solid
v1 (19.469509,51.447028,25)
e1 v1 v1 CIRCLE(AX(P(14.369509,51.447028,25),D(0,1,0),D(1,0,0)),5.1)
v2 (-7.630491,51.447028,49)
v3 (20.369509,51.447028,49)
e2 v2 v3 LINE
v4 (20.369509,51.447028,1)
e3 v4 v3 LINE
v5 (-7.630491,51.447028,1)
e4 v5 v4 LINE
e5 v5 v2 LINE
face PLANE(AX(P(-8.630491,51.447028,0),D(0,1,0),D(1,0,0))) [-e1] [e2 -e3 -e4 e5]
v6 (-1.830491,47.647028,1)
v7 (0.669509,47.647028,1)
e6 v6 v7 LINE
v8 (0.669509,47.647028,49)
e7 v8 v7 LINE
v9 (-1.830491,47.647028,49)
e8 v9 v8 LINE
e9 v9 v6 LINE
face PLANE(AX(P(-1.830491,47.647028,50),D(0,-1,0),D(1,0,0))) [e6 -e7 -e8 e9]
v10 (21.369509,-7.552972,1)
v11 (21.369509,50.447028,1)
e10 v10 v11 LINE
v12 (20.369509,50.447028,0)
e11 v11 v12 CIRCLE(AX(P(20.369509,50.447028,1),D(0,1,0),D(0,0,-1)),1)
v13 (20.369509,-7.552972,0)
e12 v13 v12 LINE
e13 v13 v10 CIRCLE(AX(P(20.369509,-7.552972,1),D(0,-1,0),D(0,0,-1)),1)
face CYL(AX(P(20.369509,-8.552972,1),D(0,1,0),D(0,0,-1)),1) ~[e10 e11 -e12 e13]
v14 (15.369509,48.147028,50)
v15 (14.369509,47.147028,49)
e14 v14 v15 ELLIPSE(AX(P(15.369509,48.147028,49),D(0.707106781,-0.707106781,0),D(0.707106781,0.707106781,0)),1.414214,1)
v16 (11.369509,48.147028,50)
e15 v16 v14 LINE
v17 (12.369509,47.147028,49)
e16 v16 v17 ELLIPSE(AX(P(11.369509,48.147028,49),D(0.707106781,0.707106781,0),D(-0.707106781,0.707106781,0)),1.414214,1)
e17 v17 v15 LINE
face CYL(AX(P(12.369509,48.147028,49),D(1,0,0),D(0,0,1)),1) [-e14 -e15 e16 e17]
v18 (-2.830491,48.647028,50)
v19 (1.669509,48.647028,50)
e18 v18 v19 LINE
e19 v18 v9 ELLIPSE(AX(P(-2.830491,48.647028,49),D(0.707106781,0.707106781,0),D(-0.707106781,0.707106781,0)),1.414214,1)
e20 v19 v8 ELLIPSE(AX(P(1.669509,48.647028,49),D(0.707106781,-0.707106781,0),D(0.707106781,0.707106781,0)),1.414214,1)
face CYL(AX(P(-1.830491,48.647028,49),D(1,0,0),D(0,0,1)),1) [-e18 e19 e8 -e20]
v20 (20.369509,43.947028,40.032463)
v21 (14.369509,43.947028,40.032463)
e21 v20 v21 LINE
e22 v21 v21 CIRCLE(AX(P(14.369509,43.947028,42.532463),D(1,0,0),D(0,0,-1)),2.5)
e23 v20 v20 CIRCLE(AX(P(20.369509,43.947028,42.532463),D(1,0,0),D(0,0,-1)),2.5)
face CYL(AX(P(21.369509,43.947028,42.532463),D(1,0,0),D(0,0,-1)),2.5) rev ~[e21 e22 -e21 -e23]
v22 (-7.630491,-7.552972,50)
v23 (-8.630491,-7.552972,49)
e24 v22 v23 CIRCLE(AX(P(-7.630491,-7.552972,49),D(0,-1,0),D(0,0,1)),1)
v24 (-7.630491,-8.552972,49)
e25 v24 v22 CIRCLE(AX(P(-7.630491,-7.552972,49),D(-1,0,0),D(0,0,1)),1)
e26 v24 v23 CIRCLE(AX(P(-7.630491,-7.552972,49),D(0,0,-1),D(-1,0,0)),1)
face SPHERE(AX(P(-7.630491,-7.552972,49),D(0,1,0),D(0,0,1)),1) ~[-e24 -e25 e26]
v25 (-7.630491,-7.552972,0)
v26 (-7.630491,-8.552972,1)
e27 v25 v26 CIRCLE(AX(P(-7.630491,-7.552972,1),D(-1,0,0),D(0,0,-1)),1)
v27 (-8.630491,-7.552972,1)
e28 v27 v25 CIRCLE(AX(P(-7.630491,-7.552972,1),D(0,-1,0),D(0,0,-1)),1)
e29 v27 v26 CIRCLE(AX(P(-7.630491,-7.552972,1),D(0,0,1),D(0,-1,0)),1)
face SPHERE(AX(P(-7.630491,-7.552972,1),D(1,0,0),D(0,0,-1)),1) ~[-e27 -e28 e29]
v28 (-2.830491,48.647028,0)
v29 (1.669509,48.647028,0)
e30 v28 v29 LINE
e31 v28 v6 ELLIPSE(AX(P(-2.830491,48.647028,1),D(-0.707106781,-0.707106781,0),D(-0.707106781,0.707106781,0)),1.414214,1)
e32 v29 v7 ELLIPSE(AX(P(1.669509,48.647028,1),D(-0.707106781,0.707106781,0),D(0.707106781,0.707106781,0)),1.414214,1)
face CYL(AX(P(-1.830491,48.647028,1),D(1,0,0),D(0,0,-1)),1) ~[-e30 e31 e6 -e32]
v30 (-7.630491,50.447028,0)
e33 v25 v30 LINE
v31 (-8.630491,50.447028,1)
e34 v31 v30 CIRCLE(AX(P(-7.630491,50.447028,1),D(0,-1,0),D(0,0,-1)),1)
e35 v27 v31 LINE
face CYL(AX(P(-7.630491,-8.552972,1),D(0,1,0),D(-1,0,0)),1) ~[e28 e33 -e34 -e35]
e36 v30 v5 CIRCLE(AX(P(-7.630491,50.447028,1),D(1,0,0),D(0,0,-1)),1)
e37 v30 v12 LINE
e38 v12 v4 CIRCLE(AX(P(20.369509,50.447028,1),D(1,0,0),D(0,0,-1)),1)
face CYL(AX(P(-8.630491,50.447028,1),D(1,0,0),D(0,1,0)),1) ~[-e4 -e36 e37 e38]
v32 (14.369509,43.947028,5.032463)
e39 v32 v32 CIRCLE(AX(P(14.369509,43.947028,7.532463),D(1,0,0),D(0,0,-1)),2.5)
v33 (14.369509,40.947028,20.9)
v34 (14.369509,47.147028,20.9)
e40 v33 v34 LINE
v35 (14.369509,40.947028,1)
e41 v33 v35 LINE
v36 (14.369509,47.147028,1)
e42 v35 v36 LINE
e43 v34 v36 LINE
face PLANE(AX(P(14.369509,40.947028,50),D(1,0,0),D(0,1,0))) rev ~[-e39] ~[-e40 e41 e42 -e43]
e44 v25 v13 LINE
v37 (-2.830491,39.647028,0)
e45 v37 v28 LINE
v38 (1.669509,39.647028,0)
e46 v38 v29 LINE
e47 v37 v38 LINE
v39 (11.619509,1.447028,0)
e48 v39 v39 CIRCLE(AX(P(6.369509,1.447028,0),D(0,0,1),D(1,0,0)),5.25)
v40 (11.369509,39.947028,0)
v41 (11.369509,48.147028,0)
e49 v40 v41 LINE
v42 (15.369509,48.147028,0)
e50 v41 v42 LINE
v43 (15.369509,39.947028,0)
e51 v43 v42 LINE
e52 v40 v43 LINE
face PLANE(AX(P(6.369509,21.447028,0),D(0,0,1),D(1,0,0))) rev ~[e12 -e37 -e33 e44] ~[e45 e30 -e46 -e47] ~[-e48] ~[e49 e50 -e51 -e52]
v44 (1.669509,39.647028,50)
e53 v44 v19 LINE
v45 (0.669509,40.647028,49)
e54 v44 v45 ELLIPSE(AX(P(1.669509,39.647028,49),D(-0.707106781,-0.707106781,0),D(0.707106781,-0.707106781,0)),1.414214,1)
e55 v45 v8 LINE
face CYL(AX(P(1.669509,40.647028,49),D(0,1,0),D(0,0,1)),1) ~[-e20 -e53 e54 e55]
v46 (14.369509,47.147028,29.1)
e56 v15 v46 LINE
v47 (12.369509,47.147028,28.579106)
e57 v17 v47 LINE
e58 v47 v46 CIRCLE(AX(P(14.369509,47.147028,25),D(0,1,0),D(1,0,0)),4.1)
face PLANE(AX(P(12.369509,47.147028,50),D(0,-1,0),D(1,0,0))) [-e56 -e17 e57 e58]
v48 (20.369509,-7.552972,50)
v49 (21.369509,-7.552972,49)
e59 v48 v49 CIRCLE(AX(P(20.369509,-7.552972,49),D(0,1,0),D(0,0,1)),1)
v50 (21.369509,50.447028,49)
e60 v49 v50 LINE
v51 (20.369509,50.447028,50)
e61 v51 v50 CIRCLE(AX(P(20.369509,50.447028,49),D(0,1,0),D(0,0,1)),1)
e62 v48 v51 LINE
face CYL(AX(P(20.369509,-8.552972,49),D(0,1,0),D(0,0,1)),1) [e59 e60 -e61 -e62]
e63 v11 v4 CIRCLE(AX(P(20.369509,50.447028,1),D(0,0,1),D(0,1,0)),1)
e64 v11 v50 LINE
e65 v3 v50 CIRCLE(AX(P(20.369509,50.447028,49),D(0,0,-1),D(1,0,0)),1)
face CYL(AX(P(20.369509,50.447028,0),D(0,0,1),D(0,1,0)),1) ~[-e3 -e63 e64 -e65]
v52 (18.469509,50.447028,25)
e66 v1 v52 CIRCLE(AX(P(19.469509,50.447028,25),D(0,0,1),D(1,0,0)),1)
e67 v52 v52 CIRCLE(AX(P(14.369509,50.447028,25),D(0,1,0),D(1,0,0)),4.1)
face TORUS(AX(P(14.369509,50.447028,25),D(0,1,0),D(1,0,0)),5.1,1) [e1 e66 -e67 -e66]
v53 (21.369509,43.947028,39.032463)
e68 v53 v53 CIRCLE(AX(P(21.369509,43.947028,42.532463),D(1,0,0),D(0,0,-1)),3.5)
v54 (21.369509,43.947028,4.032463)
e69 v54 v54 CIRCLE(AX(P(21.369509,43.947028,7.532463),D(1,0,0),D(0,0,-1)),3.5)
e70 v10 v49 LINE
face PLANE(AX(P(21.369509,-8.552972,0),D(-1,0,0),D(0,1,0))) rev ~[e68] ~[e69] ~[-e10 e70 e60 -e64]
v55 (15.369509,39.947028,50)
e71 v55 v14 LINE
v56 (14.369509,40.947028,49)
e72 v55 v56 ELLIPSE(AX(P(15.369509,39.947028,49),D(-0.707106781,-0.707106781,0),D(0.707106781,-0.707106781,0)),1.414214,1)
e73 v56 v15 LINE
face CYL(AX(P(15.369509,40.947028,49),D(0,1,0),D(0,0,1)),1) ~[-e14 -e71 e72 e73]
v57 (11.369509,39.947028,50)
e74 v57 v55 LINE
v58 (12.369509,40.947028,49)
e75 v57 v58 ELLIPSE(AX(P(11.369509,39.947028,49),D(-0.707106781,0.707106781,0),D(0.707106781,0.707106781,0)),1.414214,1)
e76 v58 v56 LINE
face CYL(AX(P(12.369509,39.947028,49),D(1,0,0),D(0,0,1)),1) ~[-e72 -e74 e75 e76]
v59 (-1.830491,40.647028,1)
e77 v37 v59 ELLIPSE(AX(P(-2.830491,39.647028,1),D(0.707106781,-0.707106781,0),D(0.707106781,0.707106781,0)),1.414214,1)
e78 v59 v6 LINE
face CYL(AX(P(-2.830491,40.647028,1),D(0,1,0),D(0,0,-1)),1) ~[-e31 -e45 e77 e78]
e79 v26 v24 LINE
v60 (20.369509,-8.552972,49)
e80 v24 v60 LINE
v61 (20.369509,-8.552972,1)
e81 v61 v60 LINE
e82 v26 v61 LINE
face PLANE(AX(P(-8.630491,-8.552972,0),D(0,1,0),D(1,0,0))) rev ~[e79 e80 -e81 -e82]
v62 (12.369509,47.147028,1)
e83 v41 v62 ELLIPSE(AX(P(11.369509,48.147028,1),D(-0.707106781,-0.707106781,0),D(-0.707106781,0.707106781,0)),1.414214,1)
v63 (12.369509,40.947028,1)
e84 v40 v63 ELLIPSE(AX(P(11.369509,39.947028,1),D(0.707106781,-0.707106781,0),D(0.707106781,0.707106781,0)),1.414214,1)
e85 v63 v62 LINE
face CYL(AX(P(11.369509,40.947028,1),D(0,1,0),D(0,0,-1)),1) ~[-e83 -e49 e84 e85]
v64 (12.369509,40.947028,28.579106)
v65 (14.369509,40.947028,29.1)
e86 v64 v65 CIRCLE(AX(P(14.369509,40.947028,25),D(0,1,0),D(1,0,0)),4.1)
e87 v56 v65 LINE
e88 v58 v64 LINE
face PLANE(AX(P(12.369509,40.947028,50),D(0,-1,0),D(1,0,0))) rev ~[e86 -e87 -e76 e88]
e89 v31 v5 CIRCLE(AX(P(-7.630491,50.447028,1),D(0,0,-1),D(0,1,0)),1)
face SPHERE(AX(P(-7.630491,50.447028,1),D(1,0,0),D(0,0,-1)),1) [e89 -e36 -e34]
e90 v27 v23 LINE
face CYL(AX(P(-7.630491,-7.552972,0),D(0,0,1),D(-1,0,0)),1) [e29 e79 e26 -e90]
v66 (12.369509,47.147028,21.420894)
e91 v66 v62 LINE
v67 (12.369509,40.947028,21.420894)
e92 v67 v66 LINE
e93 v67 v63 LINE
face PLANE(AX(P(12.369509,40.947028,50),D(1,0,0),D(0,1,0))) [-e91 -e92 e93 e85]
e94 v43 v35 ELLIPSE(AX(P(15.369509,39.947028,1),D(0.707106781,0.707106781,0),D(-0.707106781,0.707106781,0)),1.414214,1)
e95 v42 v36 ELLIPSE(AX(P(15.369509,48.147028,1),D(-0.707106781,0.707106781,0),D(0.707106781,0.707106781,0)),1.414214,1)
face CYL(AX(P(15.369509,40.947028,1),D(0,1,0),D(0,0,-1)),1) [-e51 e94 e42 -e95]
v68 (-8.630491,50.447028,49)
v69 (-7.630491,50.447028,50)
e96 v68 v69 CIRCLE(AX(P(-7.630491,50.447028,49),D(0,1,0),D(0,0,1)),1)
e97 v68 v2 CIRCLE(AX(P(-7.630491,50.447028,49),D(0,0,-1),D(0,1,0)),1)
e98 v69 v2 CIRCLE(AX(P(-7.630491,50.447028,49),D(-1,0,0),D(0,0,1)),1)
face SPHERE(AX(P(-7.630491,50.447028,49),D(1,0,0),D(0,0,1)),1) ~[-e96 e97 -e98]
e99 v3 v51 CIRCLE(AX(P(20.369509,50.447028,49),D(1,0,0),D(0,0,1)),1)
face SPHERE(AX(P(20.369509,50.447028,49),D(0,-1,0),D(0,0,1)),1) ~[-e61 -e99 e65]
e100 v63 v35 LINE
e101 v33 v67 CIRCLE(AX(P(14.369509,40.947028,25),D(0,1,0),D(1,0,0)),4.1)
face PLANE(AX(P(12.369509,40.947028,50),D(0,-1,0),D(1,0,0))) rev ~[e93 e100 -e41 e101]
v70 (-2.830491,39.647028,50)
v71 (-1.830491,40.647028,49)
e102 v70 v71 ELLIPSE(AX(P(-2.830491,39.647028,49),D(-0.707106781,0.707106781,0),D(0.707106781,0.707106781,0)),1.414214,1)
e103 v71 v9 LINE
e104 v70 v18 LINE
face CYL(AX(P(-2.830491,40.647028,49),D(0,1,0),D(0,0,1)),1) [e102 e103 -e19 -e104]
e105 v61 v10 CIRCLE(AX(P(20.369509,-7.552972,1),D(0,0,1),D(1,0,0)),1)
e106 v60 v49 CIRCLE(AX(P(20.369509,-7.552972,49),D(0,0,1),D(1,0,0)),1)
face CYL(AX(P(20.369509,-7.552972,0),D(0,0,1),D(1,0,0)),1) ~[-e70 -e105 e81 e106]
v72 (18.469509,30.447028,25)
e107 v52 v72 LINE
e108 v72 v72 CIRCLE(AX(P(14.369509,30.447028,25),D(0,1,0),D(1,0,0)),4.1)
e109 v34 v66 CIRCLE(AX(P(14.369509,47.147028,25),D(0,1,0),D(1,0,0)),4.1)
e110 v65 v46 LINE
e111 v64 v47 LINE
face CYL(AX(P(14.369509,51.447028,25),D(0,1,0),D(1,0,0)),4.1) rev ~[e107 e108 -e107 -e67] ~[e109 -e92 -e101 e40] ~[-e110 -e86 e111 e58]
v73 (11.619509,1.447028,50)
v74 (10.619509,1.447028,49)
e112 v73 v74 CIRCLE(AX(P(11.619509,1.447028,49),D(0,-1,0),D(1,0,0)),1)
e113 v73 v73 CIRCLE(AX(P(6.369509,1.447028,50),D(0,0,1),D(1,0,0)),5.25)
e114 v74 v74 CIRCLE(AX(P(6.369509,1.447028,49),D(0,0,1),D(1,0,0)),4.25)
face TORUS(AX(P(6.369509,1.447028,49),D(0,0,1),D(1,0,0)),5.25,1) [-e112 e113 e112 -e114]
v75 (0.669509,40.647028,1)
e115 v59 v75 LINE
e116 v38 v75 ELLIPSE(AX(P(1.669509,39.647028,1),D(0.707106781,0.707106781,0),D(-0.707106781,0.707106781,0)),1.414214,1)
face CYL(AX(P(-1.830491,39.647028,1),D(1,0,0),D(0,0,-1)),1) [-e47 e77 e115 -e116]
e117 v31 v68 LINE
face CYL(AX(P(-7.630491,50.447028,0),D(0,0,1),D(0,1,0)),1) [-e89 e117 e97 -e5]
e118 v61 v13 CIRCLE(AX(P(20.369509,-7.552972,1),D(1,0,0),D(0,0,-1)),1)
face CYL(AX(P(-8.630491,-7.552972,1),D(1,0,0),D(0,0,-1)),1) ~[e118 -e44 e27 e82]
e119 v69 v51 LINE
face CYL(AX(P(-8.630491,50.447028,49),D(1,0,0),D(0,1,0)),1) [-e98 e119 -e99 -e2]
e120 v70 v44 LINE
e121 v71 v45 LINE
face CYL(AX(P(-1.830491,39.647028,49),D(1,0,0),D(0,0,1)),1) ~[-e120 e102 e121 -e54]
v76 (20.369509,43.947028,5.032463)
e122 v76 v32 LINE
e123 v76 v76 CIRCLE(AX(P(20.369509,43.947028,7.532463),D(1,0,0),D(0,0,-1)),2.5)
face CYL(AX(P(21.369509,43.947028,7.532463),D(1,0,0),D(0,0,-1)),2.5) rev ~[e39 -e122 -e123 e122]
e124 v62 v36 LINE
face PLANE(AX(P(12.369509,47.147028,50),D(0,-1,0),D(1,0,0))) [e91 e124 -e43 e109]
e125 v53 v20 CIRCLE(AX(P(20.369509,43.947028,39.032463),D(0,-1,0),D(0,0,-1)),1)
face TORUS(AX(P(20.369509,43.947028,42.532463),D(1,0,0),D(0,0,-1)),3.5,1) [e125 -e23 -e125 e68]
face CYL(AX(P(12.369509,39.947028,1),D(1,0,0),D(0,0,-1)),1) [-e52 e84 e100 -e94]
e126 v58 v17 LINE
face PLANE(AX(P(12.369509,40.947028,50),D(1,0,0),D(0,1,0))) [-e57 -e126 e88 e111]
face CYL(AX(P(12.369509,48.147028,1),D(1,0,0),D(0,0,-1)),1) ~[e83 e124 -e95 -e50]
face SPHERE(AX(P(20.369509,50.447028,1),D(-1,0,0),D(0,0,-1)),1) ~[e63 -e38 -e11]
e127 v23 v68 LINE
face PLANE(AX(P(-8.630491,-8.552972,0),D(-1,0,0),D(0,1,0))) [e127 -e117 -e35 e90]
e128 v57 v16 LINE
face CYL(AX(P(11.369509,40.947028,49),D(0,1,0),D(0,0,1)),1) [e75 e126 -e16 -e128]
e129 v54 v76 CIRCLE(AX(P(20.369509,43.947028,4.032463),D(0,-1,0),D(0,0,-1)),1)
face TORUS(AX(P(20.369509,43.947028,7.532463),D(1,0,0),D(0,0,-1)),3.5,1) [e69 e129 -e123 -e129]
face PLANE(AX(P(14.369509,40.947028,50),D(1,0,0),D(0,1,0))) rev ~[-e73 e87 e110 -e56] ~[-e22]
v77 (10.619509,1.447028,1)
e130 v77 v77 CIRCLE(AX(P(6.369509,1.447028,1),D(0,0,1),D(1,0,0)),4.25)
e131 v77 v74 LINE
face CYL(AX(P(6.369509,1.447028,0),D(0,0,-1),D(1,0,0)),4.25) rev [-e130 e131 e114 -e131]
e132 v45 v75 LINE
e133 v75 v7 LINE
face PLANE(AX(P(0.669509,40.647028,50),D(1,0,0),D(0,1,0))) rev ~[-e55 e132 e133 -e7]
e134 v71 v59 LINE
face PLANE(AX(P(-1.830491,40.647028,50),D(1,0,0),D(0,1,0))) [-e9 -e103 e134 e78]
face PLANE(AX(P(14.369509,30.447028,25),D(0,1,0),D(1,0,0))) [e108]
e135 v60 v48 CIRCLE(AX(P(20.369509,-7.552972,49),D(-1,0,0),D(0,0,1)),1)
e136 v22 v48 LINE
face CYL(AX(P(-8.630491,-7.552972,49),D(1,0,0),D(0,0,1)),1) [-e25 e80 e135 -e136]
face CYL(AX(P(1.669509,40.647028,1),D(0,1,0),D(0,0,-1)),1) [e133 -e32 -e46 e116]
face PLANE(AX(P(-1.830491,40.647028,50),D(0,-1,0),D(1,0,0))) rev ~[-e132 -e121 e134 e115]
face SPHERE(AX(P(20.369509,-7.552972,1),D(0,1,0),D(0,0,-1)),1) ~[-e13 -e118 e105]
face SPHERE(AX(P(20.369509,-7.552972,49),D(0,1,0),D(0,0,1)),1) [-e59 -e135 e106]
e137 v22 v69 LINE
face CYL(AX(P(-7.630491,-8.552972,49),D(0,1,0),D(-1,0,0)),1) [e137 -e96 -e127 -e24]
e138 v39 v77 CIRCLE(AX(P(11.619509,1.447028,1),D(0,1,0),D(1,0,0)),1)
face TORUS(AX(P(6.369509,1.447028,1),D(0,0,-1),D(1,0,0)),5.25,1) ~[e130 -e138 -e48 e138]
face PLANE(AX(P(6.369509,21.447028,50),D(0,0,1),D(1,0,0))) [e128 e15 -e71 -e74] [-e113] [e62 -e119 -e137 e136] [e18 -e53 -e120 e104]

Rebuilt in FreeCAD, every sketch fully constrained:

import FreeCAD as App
import Part
import Sketcher
from FreeCAD import Vector
Q = App.Units.Quantity


def edges_at(feature, points):
    """Names of the edges that pass closest to the given points."""
    edges = feature.Shape.Edges
    near = lambda p: min(range(len(edges)), key=lambda i: edges[i].distToShape(Part.Vertex(*p))[0])
    return sorted({f"Edge{near(p) + 1}" for p in points})


def add_polygon(sketch, points):
    """Adds a closed chain of lines whose ends are joined by coincident constraints."""
    first, n = sketch.GeometryCount, len(points)
    for a, b in zip(points, points[1:] + points[:1]):
        sketch.addGeometry(Part.LineSegment(App.Vector(*a, 0), App.Vector(*b, 0)), False)
    for i in range(n):
        sketch.addConstraint(Sketcher.Constraint("Coincident", first + i, 2, first + (i + 1) % n, 1))

doc = App.newDocument("Part")
body = doc.addObject("PartDesign::Body", "Body")

sketch1 = body.newObject("Sketcher::SketchObject", "Sketch")
sketch1.AttachmentSupport = (doc.getObject("XY_Plane"), [""])
sketch1.MapMode = "FlatFace"
add_polygon(sketch1, [(-8.6, 51.4), (-8.6, -8.6), (21.4, -8.6), (21.4, 51.4)])
sketch1.addGeometry(Part.Circle(Vector(6.4, 1.4, 0), Vector(0, 0, 1), 4.2), False)
sketch1.addConstraint(Sketcher.Constraint("Vertical", 0))
sketch1.addConstraint(Sketcher.Constraint("Horizontal", 1))
sketch1.addConstraint(Sketcher.Constraint("Vertical", 2))
sketch1.addConstraint(Sketcher.Constraint("Horizontal", 3))
sketch1.addConstraint(Sketcher.Constraint("Diameter", 4, Q("8.5 mm")))
sketch1.addConstraint(Sketcher.Constraint("DistanceX", 1, 1, 1, 2, Q("30 mm")))
sketch1.addConstraint(Sketcher.Constraint("DistanceY", 0, 2, 0, 1, Q("60 mm")))
sketch1.addConstraint(Sketcher.Constraint("DistanceX", 0, 2, 4, 3, Q("15 mm")))
sketch1.addConstraint(Sketcher.Constraint("DistanceY", 0, 2, 4, 3, Q("10 mm")))
sketch1.addConstraint(Sketcher.Constraint("DistanceX", -1, 1, 4, 3, Q("6.369509 mm")))
sketch1.addConstraint(Sketcher.Constraint("DistanceY", -1, 1, 4, 3, Q("1.447028 mm")))
pad1 = body.newObject("PartDesign::Pad", "Pad")
pad1.Profile = sketch1
pad1.Length = 50

sketch2 = body.newObject("Sketcher::SketchObject", "Sketch001")
sketch2.AttachmentSupport = (doc.getObject("XY_Plane"), [""])
sketch2.MapMode = "FlatFace"
sketch2.AttachmentOffset = App.Placement(Vector(0, 0, 50), App.Rotation())
add_polygon(sketch2, [(-1.8, 47.6), (-1.8, 40.6), (0.7, 40.6), (0.7, 47.6)])
add_polygon(sketch2, [(12.4, 47.1), (12.4, 40.9), (14.4, 40.9), (14.4, 47.1)])
sketch2.addConstraint(Sketcher.Constraint("Vertical", 0))
sketch2.addConstraint(Sketcher.Constraint("Horizontal", 1))
sketch2.addConstraint(Sketcher.Constraint("Vertical", 2))
sketch2.addConstraint(Sketcher.Constraint("Horizontal", 3))
sketch2.addConstraint(Sketcher.Constraint("Vertical", 4))
sketch2.addConstraint(Sketcher.Constraint("Horizontal", 5))
sketch2.addConstraint(Sketcher.Constraint("Vertical", 6))
sketch2.addConstraint(Sketcher.Constraint("Horizontal", 7))
sketch2.addConstraint(Sketcher.Constraint("DistanceX", 5, 1, 5, 2, Q("2 mm")))
sketch2.addConstraint(Sketcher.Constraint("DistanceY", 0, 2, 0, 1, Q("7 mm")))
sketch2.addConstraint(Sketcher.Constraint("DistanceX", 1, 1, 1, 2, Q("2.5 mm")))
sketch2.addConstraint(Sketcher.Constraint("DistanceY", 4, 2, 4, 1, Q("6.2 mm")))
sketch2.addConstraint(Sketcher.Constraint("DistanceX", 1, 2, 4, 2, Q("11.7 mm")))
sketch2.addConstraint(Sketcher.Constraint("DistanceY", 1, 2, 4, 2, Q("0.3 mm")))
sketch2.addConstraint(Sketcher.Constraint("DistanceX", 0, 2, -1, 1, Q("1.830491 mm")))
sketch2.addConstraint(Sketcher.Constraint("DistanceY", -1, 1, 0, 2, Q("40.647028 mm")))
pocket1 = body.newObject("PartDesign::Pocket", "Pocket")
pocket1.Profile = sketch2
pocket1.Length = 50

sketch3 = body.newObject("Sketcher::SketchObject", "Sketch002")
sketch3.AttachmentSupport = (doc.getObject("YZ_Plane"), [""])
sketch3.MapMode = "FlatFace"
sketch3.AttachmentOffset = App.Placement(Vector(0, 0, 21.369509), App.Rotation())
sketch3.addGeometry(Part.Circle(Vector(43.9, 42.5, 0), Vector(0, 0, 1), 2.5), False)
sketch3.addGeometry(Part.Circle(Vector(43.9, 7.5, 0), Vector(0, 0, 1), 2.5), False)
sketch3.addConstraint(Sketcher.Constraint("Equal", 0, 1))
sketch3.addConstraint(Sketcher.Constraint("Vertical", 0, 3, 1, 3))
sketch3.addConstraint(Sketcher.Constraint("Diameter", 0, Q("5 mm")))
sketch3.addConstraint(Sketcher.Constraint("DistanceY", 1, 3, 0, 3, Q("35 mm")))
sketch3.addConstraint(Sketcher.Constraint("DistanceX", -1, 1, 0, 3, Q("43.947028 mm")))
sketch3.addConstraint(Sketcher.Constraint("DistanceY", -1, 1, 0, 3, Q("42.532463 mm")))
pocket2 = body.newObject("PartDesign::Pocket", "Pocket001")
pocket2.Profile = sketch3
pocket2.Length = 7
doc.recompute()

fillet = body.newObject("PartDesign::Fillet", "Fillet")
fillet.Base = (pocket2, edges_at(pocket2, [
    (12.37, 44.047, 50),
    (13.37, 40.947, 50),
    (14.37, 44.047, 50),
    (13.37, 47.147, 50),
]))
fillet.Radius = 1
doc.recompute()

fillet2 = body.newObject("PartDesign::Fillet", "Fillet001")
fillet2.Base = (fillet, edges_at(fillet, [
    (-1.83, 44.147, 50),
    (-0.58, 40.647, 50),
    (0.67, 44.147, 50),
    (-0.58, 47.647, 50),
]))
fillet2.Radius = 1
doc.recompute()

fillet3 = body.newObject("PartDesign::Fillet", "Fillet002")
fillet3.Base = (fillet2, edges_at(fillet2, [(2.12, 1.447, 50)]))
fillet3.Radius = 1
doc.recompute()

fillet4 = body.newObject("PartDesign::Fillet", "Fillet003")
fillet4.Base = (fillet3, edges_at(fillet3, [(21.37, 43.947, 45.032)]))
fillet4.Radius = 1
doc.recompute()

fillet5 = body.newObject("PartDesign::Fillet", "Fillet004")
fillet5.Base = (fillet4, edges_at(fillet4, [(21.37, 43.947, 10.032)]))
fillet5.Radius = 1
doc.recompute()

fillet6 = body.newObject("PartDesign::Fillet", "Fillet005")
fillet6.Base = (fillet5, edges_at(fillet5, [
    (2.12, 1.447, 0),
    (-1.83, 44.147, 0),
    (-0.58, 47.647, 0),
    (0.67, 44.147, 0),
    (-0.58, 40.647, 0),
    (12.37, 44.047, 0),
    (13.37, 47.147, 0),
    (14.37, 44.047, 0),
    (13.37, 40.947, 0),
]))
fillet6.Radius = 1

sketch4 = body.newObject("Sketcher::SketchObject", "Sketch003")
sketch4.AttachmentSupport = (doc.getObject("XZ_Plane"), [""])
sketch4.MapMode = "FlatFace"
sketch4.AttachmentOffset = App.Placement(Vector(0, 0, -51.447028), App.Rotation())
sketch4.addGeometry(Part.Circle(Vector(14.4, 25, 0), Vector(0, 0, 1), 4.1), False)
sketch4.addConstraint(Sketcher.Constraint("Diameter", 0, Q("8.2 mm")))
sketch4.addConstraint(Sketcher.Constraint("DistanceY", -1, 1, 0, 3, Q("25 mm")))
sketch4.addConstraint(Sketcher.Constraint("DistanceX", -1, 1, 0, 3, Q("14.369509 mm")))
pocket3 = body.newObject("PartDesign::Pocket", "Pocket002")
pocket3.Profile = sketch4
pocket3.Length = 21
pocket3.Reversed = True
doc.recompute()

fillet7 = body.newObject("PartDesign::Fillet", "Fillet006")
fillet7.Base = (pocket3, edges_at(pocket3, [(10.27, 51.447, 25)]))
fillet7.Radius = 1
doc.recompute()

fillet8 = body.newObject("PartDesign::Fillet", "Fillet007")
fillet8.Base = (fillet7, edges_at(fillet7, [
    (21.37, 21.447, 50),
    (6.37, 51.447, 50),
    (-8.63, 21.447, 50),
    (6.37, 51.447, 0),
    (21.37, 21.447, 0),
    (6.37, -8.553, 0),
    (-8.63, 21.447, 0),
    (6.37, -8.553, 50),
    (-8.63, 51.447, 25),
    (21.37, 51.447, 25),
    (21.37, -8.553, 25),
    (-8.63, -8.553, 25),
]))
fillet8.Radius = 1

doc.recompute()
